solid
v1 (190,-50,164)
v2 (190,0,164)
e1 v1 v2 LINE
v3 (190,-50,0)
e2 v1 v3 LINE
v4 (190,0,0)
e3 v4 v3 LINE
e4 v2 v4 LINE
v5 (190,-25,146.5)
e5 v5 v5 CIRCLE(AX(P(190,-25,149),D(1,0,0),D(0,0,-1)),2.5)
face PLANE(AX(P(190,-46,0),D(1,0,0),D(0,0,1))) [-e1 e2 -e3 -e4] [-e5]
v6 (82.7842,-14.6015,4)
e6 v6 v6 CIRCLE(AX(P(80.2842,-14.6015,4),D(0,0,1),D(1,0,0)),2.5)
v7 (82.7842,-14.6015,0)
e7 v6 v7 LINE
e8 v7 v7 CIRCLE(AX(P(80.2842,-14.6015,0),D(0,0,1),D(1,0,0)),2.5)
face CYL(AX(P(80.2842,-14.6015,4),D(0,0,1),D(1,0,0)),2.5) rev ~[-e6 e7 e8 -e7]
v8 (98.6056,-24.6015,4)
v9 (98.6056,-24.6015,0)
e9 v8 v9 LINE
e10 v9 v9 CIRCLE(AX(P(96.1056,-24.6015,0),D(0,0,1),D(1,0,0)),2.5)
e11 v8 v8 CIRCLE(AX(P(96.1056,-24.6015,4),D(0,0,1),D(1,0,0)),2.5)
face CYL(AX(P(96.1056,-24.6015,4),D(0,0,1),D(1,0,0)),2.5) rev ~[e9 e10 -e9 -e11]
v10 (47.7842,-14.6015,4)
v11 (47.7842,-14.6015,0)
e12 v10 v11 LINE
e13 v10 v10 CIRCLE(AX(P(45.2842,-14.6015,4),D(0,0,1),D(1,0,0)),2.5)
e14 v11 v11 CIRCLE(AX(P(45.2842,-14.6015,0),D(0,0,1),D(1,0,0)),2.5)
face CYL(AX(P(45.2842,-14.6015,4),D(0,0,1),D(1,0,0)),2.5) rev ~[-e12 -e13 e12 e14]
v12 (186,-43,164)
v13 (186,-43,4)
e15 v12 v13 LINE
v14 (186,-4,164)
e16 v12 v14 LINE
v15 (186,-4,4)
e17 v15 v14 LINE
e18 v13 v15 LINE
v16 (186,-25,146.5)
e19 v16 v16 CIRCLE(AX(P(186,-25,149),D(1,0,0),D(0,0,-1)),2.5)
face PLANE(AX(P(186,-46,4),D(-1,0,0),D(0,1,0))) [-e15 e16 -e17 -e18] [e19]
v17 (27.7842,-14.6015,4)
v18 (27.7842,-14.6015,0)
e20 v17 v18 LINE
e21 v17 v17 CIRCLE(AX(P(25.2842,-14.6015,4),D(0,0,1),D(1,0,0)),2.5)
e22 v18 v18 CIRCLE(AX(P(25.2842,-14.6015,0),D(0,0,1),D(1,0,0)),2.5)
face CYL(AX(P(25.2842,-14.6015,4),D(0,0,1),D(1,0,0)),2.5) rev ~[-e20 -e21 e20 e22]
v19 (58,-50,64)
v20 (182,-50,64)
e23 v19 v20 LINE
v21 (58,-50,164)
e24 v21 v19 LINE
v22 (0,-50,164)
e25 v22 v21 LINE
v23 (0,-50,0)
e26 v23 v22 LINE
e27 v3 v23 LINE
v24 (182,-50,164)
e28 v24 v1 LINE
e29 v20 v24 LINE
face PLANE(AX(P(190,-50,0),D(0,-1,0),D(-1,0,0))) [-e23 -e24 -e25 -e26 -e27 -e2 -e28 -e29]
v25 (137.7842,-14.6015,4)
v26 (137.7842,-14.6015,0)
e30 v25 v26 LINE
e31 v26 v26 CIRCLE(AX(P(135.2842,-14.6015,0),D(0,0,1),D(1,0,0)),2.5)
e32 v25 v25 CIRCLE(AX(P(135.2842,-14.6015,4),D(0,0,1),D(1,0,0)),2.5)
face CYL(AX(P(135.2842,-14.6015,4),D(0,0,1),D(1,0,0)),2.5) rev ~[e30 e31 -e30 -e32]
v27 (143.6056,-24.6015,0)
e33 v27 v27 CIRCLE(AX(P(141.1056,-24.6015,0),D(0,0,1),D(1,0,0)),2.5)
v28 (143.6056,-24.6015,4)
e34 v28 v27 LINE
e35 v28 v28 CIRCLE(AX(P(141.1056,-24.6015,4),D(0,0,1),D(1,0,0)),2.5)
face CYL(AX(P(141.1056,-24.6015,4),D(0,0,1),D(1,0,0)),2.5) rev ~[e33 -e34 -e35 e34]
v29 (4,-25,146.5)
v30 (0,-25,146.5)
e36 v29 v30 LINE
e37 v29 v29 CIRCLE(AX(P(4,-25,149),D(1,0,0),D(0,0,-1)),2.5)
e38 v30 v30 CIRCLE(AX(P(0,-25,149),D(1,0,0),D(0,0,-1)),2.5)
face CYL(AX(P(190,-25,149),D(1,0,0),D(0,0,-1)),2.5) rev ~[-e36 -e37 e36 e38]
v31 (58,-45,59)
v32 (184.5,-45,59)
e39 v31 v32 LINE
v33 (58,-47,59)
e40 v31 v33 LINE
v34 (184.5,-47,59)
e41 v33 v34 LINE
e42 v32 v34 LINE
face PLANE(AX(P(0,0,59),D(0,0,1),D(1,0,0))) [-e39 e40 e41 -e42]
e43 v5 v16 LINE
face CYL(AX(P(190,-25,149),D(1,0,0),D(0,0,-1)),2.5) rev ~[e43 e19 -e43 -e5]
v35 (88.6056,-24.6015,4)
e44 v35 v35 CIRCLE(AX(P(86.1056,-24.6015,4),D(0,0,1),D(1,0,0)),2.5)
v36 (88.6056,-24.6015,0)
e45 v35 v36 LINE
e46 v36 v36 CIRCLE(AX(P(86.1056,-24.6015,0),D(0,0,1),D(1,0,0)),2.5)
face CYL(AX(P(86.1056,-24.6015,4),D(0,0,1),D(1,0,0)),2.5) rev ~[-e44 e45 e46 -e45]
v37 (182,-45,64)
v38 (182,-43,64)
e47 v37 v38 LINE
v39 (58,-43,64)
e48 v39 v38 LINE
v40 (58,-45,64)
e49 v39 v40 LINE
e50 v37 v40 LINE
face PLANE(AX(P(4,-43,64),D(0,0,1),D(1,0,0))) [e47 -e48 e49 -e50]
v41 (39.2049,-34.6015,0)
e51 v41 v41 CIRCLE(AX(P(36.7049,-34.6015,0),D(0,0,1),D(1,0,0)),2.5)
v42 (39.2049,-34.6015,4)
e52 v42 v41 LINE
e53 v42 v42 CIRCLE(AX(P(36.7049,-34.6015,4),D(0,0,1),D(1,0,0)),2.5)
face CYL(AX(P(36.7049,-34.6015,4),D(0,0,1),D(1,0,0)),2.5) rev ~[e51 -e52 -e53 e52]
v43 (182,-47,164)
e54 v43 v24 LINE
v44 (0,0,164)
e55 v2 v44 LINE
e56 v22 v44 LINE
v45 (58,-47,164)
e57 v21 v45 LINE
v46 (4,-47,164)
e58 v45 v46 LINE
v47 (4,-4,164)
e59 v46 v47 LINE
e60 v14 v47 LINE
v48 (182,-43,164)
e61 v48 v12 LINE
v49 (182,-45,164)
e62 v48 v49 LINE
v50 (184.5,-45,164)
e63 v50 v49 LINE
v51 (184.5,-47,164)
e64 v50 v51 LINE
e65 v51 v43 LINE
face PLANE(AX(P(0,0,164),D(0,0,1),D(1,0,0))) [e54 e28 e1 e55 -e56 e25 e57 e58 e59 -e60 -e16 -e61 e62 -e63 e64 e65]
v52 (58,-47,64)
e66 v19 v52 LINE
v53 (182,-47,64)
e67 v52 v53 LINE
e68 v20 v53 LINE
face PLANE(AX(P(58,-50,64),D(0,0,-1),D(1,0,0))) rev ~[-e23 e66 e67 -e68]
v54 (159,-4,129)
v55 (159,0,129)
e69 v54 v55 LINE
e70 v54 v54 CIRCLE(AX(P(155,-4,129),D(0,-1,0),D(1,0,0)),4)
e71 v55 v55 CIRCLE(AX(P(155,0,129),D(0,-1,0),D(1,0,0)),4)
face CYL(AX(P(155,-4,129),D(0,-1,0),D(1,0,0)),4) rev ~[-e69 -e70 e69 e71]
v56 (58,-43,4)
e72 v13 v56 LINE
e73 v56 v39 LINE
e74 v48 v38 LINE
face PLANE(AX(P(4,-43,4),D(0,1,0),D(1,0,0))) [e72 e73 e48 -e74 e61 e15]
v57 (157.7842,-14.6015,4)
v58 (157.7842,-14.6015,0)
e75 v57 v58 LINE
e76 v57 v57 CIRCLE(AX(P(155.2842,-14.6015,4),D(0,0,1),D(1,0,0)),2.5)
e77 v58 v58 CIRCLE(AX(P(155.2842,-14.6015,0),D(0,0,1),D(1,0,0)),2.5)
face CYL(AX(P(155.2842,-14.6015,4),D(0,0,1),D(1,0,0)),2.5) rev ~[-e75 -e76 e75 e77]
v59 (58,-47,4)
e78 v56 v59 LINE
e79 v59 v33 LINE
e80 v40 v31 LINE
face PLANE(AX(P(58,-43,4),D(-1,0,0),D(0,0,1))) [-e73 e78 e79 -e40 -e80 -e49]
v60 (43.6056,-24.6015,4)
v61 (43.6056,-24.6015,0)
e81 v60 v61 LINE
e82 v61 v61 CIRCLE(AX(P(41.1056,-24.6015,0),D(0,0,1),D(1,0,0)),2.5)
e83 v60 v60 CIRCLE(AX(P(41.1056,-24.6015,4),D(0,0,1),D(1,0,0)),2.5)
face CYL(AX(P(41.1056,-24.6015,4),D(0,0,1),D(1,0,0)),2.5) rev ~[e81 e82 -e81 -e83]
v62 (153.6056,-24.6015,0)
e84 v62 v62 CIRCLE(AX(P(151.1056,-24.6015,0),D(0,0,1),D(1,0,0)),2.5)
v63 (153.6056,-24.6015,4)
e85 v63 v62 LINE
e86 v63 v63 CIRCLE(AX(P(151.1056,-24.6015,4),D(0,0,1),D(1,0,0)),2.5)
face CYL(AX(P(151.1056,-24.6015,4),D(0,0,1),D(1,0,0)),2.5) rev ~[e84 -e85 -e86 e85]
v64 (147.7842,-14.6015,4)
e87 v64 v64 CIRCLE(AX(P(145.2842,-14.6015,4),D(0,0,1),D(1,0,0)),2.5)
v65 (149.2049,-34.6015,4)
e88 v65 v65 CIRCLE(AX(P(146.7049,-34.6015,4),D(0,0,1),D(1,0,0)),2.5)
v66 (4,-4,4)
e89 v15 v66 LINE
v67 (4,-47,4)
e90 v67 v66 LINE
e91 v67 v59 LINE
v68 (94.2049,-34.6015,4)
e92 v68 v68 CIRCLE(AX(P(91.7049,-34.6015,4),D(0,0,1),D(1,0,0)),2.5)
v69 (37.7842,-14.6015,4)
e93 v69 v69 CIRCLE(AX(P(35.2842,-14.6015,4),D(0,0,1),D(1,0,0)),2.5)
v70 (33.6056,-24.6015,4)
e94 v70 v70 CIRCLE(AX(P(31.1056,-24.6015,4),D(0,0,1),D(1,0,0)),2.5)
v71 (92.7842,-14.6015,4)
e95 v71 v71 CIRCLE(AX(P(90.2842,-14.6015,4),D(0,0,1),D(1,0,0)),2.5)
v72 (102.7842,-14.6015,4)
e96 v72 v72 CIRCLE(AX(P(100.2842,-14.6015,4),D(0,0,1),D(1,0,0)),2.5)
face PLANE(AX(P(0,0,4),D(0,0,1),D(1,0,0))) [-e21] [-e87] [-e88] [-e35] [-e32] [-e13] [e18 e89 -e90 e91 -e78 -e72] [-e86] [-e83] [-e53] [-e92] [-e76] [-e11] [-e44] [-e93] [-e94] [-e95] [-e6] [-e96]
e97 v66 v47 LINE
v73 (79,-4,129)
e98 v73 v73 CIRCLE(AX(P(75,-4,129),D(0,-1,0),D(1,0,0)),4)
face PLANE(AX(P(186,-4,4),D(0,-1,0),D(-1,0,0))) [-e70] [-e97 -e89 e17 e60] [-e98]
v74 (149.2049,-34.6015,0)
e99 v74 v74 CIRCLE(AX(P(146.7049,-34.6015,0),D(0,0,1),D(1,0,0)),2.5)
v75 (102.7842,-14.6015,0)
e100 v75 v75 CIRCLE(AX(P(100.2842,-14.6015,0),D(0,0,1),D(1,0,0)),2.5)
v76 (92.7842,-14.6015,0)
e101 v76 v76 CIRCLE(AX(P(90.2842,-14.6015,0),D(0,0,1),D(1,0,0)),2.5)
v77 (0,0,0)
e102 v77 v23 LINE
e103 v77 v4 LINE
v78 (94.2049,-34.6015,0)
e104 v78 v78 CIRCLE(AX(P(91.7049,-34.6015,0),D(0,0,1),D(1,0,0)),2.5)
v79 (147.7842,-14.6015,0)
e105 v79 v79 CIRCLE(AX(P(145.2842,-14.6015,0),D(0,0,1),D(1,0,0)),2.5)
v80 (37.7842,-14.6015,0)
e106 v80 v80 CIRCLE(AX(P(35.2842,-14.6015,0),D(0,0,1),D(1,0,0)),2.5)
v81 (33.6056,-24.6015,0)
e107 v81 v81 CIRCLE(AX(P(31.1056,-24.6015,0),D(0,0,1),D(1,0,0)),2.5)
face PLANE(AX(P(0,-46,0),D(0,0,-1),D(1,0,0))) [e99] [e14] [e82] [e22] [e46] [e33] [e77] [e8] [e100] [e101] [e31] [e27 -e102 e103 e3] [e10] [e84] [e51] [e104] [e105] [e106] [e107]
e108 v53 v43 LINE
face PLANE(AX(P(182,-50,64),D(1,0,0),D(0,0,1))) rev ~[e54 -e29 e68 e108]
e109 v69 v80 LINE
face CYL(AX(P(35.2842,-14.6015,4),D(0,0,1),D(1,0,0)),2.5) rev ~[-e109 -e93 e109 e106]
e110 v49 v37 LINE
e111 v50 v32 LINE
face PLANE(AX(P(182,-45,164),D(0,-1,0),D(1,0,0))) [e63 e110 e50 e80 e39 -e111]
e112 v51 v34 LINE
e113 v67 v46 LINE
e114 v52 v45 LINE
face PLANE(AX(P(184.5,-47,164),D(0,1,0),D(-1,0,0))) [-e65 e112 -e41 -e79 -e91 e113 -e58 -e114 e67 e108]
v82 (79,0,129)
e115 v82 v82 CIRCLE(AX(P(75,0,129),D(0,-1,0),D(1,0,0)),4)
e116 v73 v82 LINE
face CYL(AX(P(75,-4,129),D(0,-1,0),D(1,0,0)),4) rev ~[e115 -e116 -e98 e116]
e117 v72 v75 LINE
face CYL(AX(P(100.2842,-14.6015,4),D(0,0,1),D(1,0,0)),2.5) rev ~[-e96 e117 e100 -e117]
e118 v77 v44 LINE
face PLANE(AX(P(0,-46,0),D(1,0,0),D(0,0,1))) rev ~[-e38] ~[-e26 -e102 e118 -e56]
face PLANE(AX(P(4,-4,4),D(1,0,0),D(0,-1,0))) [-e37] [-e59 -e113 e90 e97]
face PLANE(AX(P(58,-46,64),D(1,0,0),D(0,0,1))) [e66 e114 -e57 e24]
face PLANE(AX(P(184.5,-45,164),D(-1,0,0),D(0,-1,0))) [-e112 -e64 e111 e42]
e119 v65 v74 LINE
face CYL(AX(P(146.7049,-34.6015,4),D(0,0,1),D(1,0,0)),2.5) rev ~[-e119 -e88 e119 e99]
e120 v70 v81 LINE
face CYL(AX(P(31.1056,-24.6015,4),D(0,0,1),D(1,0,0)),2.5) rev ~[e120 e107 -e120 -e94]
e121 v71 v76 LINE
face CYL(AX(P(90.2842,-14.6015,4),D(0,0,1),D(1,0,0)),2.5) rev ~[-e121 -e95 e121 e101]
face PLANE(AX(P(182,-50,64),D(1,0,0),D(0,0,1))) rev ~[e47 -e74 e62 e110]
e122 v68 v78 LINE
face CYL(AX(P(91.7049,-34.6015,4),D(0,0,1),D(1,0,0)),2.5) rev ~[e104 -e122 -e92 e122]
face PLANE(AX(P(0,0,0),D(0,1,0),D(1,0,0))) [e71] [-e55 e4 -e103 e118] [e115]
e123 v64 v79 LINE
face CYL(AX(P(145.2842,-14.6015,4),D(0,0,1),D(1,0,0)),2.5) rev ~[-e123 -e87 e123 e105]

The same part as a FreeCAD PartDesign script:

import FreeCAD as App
import Part
import Sketcher


def add_polygon(sketch, points):
    """Adds a closed chain of lines whose ends are joined by coincident constraints."""
    first, n = sketch.GeometryCount, len(points)
    for a, b in zip(points, points[1:] + points[:1]):
        sketch.addGeometry(Part.LineSegment(App.Vector(*a, 0), App.Vector(*b, 0)), False)
    for i in range(n):
        sketch.addConstraint(Sketcher.Constraint("Coincident", first + i, 2, first + (i + 1) % n, 1))

doc = App.newDocument("Part")
params = doc.addObject("Spreadsheet::Sheet", "Params")
for row, (alias, value) in enumerate([
    ("sketch1_width", "190 mm"),
    ("sketch1_height", "50 mm"),
    ("pad1_length", "4 mm"),
    ("sketch2_width", "190 mm"),
    ("sketch2_height", "50 mm"),
    ("pad2_length", "160 mm"),
    ("sketch3_width", "124 mm"),
    ("sketch3_height", "100 mm"),
    ("pocket1_length", "10 mm"),
    ("sketch4_diameter", "8 mm"),
    ("pocket2_length", "10 mm"),
    ("sketch5_width", "190 mm"),
    ("sketch5_width2", "58 mm"),
    ("sketch5_width3", "124 mm"),
    ("sketch5_height", "164 mm"),
    ("sketch5_height2", "100 mm"),
    ("pad3_length", "3 mm"),
    ("sketch6_height", "2 mm"),
    ("sketch6_width", "180.5 mm"),
    ("pocket3_length", "105 mm"),
    ("sketch7_width", "54 mm"),
    ("sketch7_height", "100 mm"),
    ("pocket4_length", "4 mm"),
    ("sketch8_width", "54 mm"),
    ("sketch8_height", "60 mm"),
    ("pocket5_length", "4 mm"),
    ("sketch9_diameter", "5 mm"),
    ("sketch10_diameter", "5 mm"),
    ("linearpattern_pitch", "55 mm"),
], start=1):
    params.set(f"A{row}", alias)
    params.set(f"B{row}", "=" + value)
    params.setAlias(f"B{row}", alias)

body = doc.addObject("PartDesign::Body", "Body")

sketch1 = body.newObject("Sketcher::SketchObject", "Sketch")
sketch1.AttachmentSupport = (doc.getObject("XY_Plane"), [""])
sketch1.MapMode = "FlatFace"
add_polygon(sketch1, [(190, 0), (0, 0), (0, -50), (190, -50)])
sketch1.addConstraint([
    Sketcher.Constraint("Horizontal", 0),
    Sketcher.Constraint("Vertical", 1),
    Sketcher.Constraint("Horizontal", 2),
    Sketcher.Constraint("Vertical", 3),
    Sketcher.Constraint("Coincident", 0, 2, -1, 1),
    Sketcher.Constraint("DistanceX", 0, 2, 0, 1, 190.0),
    Sketcher.Constraint("DistanceY", 1, 2, 1, 1, 50.0),
])
sketch1.setExpression("Constraints[9]", "Params.sketch1_width")
sketch1.setExpression("Constraints[10]", "Params.sketch1_height")
pad1 = body.newObject("PartDesign::Pad", "Pad")
pad1.Profile = sketch1
pad1.setExpression("Length", "Params.pad1_length")

sketch2 = body.newObject("Sketcher::SketchObject", "Sketch001")
sketch2.AttachmentSupport = (doc.getObject("XY_Plane"), [""])
sketch2.MapMode = "FlatFace"
sketch2.AttachmentOffset = App.Placement(App.Vector(0, 0, 4), App.Rotation())
add_polygon(sketch2, [(190, -50), (190, 0), (0, 0), (0, -50)])
add_polygon(sketch2, [(186, -46), (4, -46), (4, -4), (186, -4)])
sketch2.addConstraint([
    Sketcher.Constraint("Vertical", 0),
    Sketcher.Constraint("Horizontal", 1),
    Sketcher.Constraint("Vertical", 2),
    Sketcher.Constraint("Horizontal", 3),
    Sketcher.Constraint("Horizontal", 4),
    Sketcher.Constraint("Vertical", 5),
    Sketcher.Constraint("Horizontal", 6),
    Sketcher.Constraint("Vertical", 7),
    Sketcher.Constraint("Coincident", 1, 2, -1, 1),
    Sketcher.Constraint("DistanceX", -1, 1, 4, 2, 4.0),
    Sketcher.Constraint("DistanceY", 5, 2, -1, 1, 4.0),
    Sketcher.Constraint("DistanceY", 2, 2, 4, 2, 4.0),
    Sketcher.Constraint("DistanceX", 6, 2, 0, 2, 4.0),
    Sketcher.Constraint("DistanceX", 1, 2, 1, 1, 190.0),
    Sketcher.Constraint("DistanceY", 0, 1, 0, 2, 50.0),
])
sketch2.setExpression("Constraints[21]", "Params.sketch2_width")
sketch2.setExpression("Constraints[22]", "Params.sketch2_height")
pad2 = body.newObject("PartDesign::Pad", "Pad001")
pad2.Profile = sketch2
pad2.setExpression("Length", "Params.pad2_length")

sketch3 = body.newObject("Sketcher::SketchObject", "Sketch002")
sketch3.AttachmentSupport = (doc.getObject("XZ_Plane"), [""])
sketch3.MapMode = "FlatFace"
sketch3.AttachmentOffset = App.Placement(App.Vector(0, 0, 50), App.Rotation())
add_polygon(sketch3, [(182, 164), (58, 164), (58, 64), (182, 64)])
sketch3.addConstraint([
    Sketcher.Constraint("Horizontal", 0),
    Sketcher.Constraint("Vertical", 1),
    Sketcher.Constraint("Horizontal", 2),
    Sketcher.Constraint("Vertical", 3),
    Sketcher.Constraint("DistanceX", 0, 2, 0, 1, 124.0),
    Sketcher.Constraint("DistanceY", 1, 2, 1, 1, 100.0),
    Sketcher.Constraint("DistanceX", -1, 1, 0, 2, 58.0),
    Sketcher.Constraint("DistanceY", -1, 1, 0, 2, 164.0),
])
sketch3.setExpression("Constraints[8]", "Params.sketch3_width")
sketch3.setExpression("Constraints[9]", "Params.sketch3_height")
pocket1 = body.newObject("PartDesign::Pocket", "Pocket")
pocket1.Profile = sketch3
pocket1.setExpression("Length", "Params.pocket1_length")

sketch4 = body.newObject("Sketcher::SketchObject", "Sketch003")
sketch4.AttachmentSupport = (doc.getObject("XZ_Plane"), [""])
sketch4.MapMode = "FlatFace"
sketch4.AttachmentOffset = App.Placement(App.Vector(0, 0, 4), App.Rotation())
sketch4.addGeometry([
    Part.Circle(App.Vector(155, 129, 0), App.Vector(0, 0, 1), 4),
    Part.Circle(App.Vector(75, 129, 0), App.Vector(0, 0, 1), 4),
], False)
sketch4.addConstraint([
    Sketcher.Constraint("Equal", 0, 1),
    Sketcher.Constraint("Horizontal", 0, 3, 1, 3),
    Sketcher.Constraint("Diameter", 0, 8.0),
    Sketcher.Constraint("DistanceX", 1, 3, 0, 3, 80.0),
    Sketcher.Constraint("DistanceX", -1, 1, 0, 3, 155.0),
    Sketcher.Constraint("DistanceY", -1, 1, 0, 3, 129.0),
])
sketch4.setExpression("Constraints[2]", "Params.sketch4_diameter")
pocket2 = body.newObject("PartDesign::Pocket", "Pocket001")
pocket2.Profile = sketch4
pocket2.setExpression("Length", "Params.pocket2_length")

sketch5 = body.newObject("Sketcher::SketchObject", "Sketch004")
sketch5.AttachmentSupport = (doc.getObject("XZ_Plane"), [""])
sketch5.MapMode = "FlatFace"
sketch5.AttachmentOffset = App.Placement(App.Vector(0, 0, 46), App.Rotation())
add_polygon(sketch5, [(190, 0), (0, 0), (0, 164), (58, 164), (58, 64), (182, 64), (182, 164), (190, 164)])
sketch5.addConstraint([
    Sketcher.Constraint("Horizontal", 0),
    Sketcher.Constraint("Vertical", 1),
    Sketcher.Constraint("Horizontal", 2),
    Sketcher.Constraint("Vertical", 3),
    Sketcher.Constraint("Horizontal", 4),
    Sketcher.Constraint("Vertical", 5),
    Sketcher.Constraint("Horizontal", 6),
    Sketcher.Constraint("Vertical", 7),
    Sketcher.Constraint("Coincident", 0, 2, -1, 1),
    Sketcher.Constraint("Horizontal", 2, 2, 5, 2),
    Sketcher.Constraint("DistanceX", 0, 2, 0, 1, 190.0),
    Sketcher.Constraint("DistanceX", 2, 1, 2, 2, 58.0),
    Sketcher.Constraint("DistanceX", 4, 1, 4, 2, 124.0),
    Sketcher.Constraint("DistanceY", 1, 1, 1, 2, 164.0),
    Sketcher.Constraint("DistanceY", 3, 2, 3, 1, 100.0),
])
sketch5.setExpression("Constraints[18]", "Params.sketch5_width")
sketch5.setExpression("Constraints[19]", "Params.sketch5_width2")
sketch5.setExpression("Constraints[20]", "Params.sketch5_width3")
sketch5.setExpression("Constraints[21]", "Params.sketch5_height")
sketch5.setExpression("Constraints[22]", "Params.sketch5_height2")
pad3 = body.newObject("PartDesign::Pad", "Pad002")
pad3.Profile = sketch5
pad3.setExpression("Length", "Params.pad3_length")
pad3.Reversed = True

sketch6 = body.newObject("Sketcher::SketchObject", "Sketch005")
sketch6.AttachmentSupport = (doc.getObject("XY_Plane"), [""])
sketch6.MapMode = "FlatFace"
sketch6.AttachmentOffset = App.Placement(App.Vector(0, 0, 164), App.Rotation())
add_polygon(sketch6, [(184.5, -47), (184.5, -45), (4, -45), (4, -47)])
sketch6.addConstraint([
    Sketcher.Constraint("Vertical", 0),
    Sketcher.Constraint("Horizontal", 1),
    Sketcher.Constraint("Vertical", 2),
    Sketcher.Constraint("Horizontal", 3),
    Sketcher.Constraint("DistanceY", 0, 1, 0, 2, 2.0),
    Sketcher.Constraint("DistanceX", 1, 2, 1, 1, 180.5),
    Sketcher.Constraint("DistanceY", 0, 2, -1, 1, 45.0),
    Sketcher.Constraint("DistanceX", -1, 1, 1, 2, 4.0),
])
sketch6.setExpression("Constraints[8]", "Params.sketch6_height")
sketch6.setExpression("Constraints[9]", "Params.sketch6_width")
pocket3 = body.newObject("PartDesign::Pocket", "Pocket002")
pocket3.Profile = sketch6
pocket3.setExpression("Length", "Params.pocket3_length")

sketch7 = body.newObject("Sketcher::SketchObject", "Sketch006")
sketch7.AttachmentSupport = (doc.getObject("XZ_Plane"), [""])
sketch7.MapMode = "FlatFace"
sketch7.AttachmentOffset = App.Placement(App.Vector(0, 0, 43), App.Rotation())
add_polygon(sketch7, [(4, 164), (58, 164), (58, 64), (4, 64)])
sketch7.addConstraint([
    Sketcher.Constraint("Horizontal", 0),
    Sketcher.Constraint("Vertical", 1),
    Sketcher.Constraint("Horizontal", 2),
    Sketcher.Constraint("Vertical", 3),
    Sketcher.Constraint("DistanceX", 0, 1, 0, 2, 54.0),
    Sketcher.Constraint("DistanceY", 1, 2, 1, 1, 100.0),
    Sketcher.Constraint("DistanceX", -1, 1, 0, 2, 58.0),
    Sketcher.Constraint("DistanceY", -1, 1, 0, 2, 164.0),
])
sketch7.setExpression("Constraints[8]", "Params.sketch7_width")
sketch7.setExpression("Constraints[9]", "Params.sketch7_height")
pocket4 = body.newObject("PartDesign::Pocket", "Pocket003")
pocket4.Profile = sketch7
pocket4.setExpression("Length", "Params.pocket4_length")
pocket4.Reversed = True

sketch8 = body.newObject("Sketcher::SketchObject", "Sketch007")
sketch8.AttachmentSupport = (doc.getObject("XZ_Plane"), [""])
sketch8.MapMode = "FlatFace"
sketch8.AttachmentOffset = App.Placement(App.Vector(0, 0, 43), App.Rotation())
add_polygon(sketch8, [(58, 4), (4, 4), (4, 64), (58, 64)])
sketch8.addConstraint([
    Sketcher.Constraint("Horizontal", 0),
    Sketcher.Constraint("Vertical", 1),
    Sketcher.Constraint("Horizontal", 2),
    Sketcher.Constraint("Vertical", 3),
    Sketcher.Constraint("DistanceX", 0, 2, 0, 1, 54.0),
    Sketcher.Constraint("DistanceY", 1, 1, 1, 2, 60.0),
    Sketcher.Constraint("DistanceX", -1, 1, 0, 2, 4.0),
    Sketcher.Constraint("DistanceY", -1, 1, 0, 2, 4.0),
])
sketch8.setExpression("Constraints[8]", "Params.sketch8_width")
sketch8.setExpression("Constraints[9]", "Params.sketch8_height")
pocket5 = body.newObject("PartDesign::Pocket", "Pocket004")
pocket5.Profile = sketch8
pocket5.setExpression("Length", "Params.pocket5_length")
pocket5.Reversed = True

sketch9 = body.newObject("Sketcher::SketchObject", "Sketch008")
sketch9.AttachmentSupport = (doc.getObject("YZ_Plane"), [""])
sketch9.MapMode = "FlatFace"
sketch9.AttachmentOffset = App.Placement(App.Vector(0, 0, 190), App.Rotation())
sketch9.addGeometry(Part.Circle(App.Vector(-25, 149, 0), App.Vector(0, 0, 1), 2.5), False)
sketch9.addConstraint([
    Sketcher.Constraint("Diameter", 0, 5.0),
    Sketcher.Constraint("DistanceX", 0, 3, -1, 1, 25.0),
    Sketcher.Constraint("DistanceY", -1, 1, 0, 3, 149.0),
])
sketch9.setExpression("Constraints[0]", "Params.sketch9_diameter")
pocket6 = body.newObject("PartDesign::Pocket", "Pocket005")
pocket6.Profile = sketch9
pocket6.Type = "ThroughAll"

sketch10 = body.newObject("Sketcher::SketchObject", "Sketch009")
sketch10.AttachmentSupport = (doc.getObject("XY_Plane"), [""])
sketch10.MapMode = "FlatFace"
sketch10.AttachmentOffset = App.Placement(App.Vector(0, 0, 4), App.Rotation())
sketch10.addGeometry([
    Part.Circle(App.Vector(25.3, -14.6, 0), App.Vector(0, 0, 1), 2.5),
    Part.Circle(App.Vector(35.3, -14.6, 0), App.Vector(0, 0, 1), 2.5),
    Part.Circle(App.Vector(45.3, -14.6, 0), App.Vector(0, 0, 1), 2.5),
    Part.Circle(App.Vector(31.1, -24.6, 0), App.Vector(0, 0, 1), 2.5),
    Part.Circle(App.Vector(41.1, -24.6, 0), App.Vector(0, 0, 1), 2.5),
    Part.Circle(App.Vector(36.7, -34.6, 0), App.Vector(0, 0, 1), 2.5),
], False)
sketch10.addConstraint([
    Sketcher.Constraint("Equal", 0, 1),
    Sketcher.Constraint("Equal", 1, 2),
    Sketcher.Constraint("Equal", 2, 3),
    Sketcher.Constraint("Equal", 3, 4),
    Sketcher.Constraint("Equal", 4, 5),
    Sketcher.Constraint("Horizontal", 0, 3, 1, 3),
    Sketcher.Constraint("Horizontal", 1, 3, 2, 3),
    Sketcher.Constraint("Horizontal", 3, 3, 4, 3),
    Sketcher.Constraint("Diameter", 0, 5.0),
    Sketcher.Constraint("DistanceX", 0, 3, 1, 3, 10.0),
    Sketcher.Constraint("DistanceX", 1, 3, 2, 3, 10.0),
    Sketcher.Constraint("DistanceY", 3, 3, 1, 3, 10.0),
    Sketcher.Constraint("DistanceX", 3, 3, 4, 3, 10.0),
    Sketcher.Constraint("DistanceY", 5, 3, 4, 3, 10.0),
    Sketcher.Constraint("DistanceX", -1, 1, 5, 3, 36.705),
    Sketcher.Constraint("DistanceX", -1, 1, 0, 3, 25.2842),
    Sketcher.Constraint("DistanceY", 0, 3, -1, 1, 14.6015),
    Sketcher.Constraint("DistanceX", -1, 1, 3, 3, 31.1056),
])
sketch10.setExpression("Constraints[8]", "Params.sketch10_diameter")
pocket7 = body.newObject("PartDesign::Pocket", "Pocket006")
pocket7.Profile = sketch10
pocket7.Type = "ThroughAll"
doc.recompute()

linearpattern = body.newObject("PartDesign::LinearPattern", "LinearPattern")
linearpattern.Originals = [pocket7]
linearpattern.Direction = (doc.getObject("X_Axis"), [""])
linearpattern.Mode = "offset"
linearpattern.setExpression("Offset", "Params.linearpattern_pitch")
linearpattern.Occurrences = 3
body.Tip = linearpattern

doc.recompute()
